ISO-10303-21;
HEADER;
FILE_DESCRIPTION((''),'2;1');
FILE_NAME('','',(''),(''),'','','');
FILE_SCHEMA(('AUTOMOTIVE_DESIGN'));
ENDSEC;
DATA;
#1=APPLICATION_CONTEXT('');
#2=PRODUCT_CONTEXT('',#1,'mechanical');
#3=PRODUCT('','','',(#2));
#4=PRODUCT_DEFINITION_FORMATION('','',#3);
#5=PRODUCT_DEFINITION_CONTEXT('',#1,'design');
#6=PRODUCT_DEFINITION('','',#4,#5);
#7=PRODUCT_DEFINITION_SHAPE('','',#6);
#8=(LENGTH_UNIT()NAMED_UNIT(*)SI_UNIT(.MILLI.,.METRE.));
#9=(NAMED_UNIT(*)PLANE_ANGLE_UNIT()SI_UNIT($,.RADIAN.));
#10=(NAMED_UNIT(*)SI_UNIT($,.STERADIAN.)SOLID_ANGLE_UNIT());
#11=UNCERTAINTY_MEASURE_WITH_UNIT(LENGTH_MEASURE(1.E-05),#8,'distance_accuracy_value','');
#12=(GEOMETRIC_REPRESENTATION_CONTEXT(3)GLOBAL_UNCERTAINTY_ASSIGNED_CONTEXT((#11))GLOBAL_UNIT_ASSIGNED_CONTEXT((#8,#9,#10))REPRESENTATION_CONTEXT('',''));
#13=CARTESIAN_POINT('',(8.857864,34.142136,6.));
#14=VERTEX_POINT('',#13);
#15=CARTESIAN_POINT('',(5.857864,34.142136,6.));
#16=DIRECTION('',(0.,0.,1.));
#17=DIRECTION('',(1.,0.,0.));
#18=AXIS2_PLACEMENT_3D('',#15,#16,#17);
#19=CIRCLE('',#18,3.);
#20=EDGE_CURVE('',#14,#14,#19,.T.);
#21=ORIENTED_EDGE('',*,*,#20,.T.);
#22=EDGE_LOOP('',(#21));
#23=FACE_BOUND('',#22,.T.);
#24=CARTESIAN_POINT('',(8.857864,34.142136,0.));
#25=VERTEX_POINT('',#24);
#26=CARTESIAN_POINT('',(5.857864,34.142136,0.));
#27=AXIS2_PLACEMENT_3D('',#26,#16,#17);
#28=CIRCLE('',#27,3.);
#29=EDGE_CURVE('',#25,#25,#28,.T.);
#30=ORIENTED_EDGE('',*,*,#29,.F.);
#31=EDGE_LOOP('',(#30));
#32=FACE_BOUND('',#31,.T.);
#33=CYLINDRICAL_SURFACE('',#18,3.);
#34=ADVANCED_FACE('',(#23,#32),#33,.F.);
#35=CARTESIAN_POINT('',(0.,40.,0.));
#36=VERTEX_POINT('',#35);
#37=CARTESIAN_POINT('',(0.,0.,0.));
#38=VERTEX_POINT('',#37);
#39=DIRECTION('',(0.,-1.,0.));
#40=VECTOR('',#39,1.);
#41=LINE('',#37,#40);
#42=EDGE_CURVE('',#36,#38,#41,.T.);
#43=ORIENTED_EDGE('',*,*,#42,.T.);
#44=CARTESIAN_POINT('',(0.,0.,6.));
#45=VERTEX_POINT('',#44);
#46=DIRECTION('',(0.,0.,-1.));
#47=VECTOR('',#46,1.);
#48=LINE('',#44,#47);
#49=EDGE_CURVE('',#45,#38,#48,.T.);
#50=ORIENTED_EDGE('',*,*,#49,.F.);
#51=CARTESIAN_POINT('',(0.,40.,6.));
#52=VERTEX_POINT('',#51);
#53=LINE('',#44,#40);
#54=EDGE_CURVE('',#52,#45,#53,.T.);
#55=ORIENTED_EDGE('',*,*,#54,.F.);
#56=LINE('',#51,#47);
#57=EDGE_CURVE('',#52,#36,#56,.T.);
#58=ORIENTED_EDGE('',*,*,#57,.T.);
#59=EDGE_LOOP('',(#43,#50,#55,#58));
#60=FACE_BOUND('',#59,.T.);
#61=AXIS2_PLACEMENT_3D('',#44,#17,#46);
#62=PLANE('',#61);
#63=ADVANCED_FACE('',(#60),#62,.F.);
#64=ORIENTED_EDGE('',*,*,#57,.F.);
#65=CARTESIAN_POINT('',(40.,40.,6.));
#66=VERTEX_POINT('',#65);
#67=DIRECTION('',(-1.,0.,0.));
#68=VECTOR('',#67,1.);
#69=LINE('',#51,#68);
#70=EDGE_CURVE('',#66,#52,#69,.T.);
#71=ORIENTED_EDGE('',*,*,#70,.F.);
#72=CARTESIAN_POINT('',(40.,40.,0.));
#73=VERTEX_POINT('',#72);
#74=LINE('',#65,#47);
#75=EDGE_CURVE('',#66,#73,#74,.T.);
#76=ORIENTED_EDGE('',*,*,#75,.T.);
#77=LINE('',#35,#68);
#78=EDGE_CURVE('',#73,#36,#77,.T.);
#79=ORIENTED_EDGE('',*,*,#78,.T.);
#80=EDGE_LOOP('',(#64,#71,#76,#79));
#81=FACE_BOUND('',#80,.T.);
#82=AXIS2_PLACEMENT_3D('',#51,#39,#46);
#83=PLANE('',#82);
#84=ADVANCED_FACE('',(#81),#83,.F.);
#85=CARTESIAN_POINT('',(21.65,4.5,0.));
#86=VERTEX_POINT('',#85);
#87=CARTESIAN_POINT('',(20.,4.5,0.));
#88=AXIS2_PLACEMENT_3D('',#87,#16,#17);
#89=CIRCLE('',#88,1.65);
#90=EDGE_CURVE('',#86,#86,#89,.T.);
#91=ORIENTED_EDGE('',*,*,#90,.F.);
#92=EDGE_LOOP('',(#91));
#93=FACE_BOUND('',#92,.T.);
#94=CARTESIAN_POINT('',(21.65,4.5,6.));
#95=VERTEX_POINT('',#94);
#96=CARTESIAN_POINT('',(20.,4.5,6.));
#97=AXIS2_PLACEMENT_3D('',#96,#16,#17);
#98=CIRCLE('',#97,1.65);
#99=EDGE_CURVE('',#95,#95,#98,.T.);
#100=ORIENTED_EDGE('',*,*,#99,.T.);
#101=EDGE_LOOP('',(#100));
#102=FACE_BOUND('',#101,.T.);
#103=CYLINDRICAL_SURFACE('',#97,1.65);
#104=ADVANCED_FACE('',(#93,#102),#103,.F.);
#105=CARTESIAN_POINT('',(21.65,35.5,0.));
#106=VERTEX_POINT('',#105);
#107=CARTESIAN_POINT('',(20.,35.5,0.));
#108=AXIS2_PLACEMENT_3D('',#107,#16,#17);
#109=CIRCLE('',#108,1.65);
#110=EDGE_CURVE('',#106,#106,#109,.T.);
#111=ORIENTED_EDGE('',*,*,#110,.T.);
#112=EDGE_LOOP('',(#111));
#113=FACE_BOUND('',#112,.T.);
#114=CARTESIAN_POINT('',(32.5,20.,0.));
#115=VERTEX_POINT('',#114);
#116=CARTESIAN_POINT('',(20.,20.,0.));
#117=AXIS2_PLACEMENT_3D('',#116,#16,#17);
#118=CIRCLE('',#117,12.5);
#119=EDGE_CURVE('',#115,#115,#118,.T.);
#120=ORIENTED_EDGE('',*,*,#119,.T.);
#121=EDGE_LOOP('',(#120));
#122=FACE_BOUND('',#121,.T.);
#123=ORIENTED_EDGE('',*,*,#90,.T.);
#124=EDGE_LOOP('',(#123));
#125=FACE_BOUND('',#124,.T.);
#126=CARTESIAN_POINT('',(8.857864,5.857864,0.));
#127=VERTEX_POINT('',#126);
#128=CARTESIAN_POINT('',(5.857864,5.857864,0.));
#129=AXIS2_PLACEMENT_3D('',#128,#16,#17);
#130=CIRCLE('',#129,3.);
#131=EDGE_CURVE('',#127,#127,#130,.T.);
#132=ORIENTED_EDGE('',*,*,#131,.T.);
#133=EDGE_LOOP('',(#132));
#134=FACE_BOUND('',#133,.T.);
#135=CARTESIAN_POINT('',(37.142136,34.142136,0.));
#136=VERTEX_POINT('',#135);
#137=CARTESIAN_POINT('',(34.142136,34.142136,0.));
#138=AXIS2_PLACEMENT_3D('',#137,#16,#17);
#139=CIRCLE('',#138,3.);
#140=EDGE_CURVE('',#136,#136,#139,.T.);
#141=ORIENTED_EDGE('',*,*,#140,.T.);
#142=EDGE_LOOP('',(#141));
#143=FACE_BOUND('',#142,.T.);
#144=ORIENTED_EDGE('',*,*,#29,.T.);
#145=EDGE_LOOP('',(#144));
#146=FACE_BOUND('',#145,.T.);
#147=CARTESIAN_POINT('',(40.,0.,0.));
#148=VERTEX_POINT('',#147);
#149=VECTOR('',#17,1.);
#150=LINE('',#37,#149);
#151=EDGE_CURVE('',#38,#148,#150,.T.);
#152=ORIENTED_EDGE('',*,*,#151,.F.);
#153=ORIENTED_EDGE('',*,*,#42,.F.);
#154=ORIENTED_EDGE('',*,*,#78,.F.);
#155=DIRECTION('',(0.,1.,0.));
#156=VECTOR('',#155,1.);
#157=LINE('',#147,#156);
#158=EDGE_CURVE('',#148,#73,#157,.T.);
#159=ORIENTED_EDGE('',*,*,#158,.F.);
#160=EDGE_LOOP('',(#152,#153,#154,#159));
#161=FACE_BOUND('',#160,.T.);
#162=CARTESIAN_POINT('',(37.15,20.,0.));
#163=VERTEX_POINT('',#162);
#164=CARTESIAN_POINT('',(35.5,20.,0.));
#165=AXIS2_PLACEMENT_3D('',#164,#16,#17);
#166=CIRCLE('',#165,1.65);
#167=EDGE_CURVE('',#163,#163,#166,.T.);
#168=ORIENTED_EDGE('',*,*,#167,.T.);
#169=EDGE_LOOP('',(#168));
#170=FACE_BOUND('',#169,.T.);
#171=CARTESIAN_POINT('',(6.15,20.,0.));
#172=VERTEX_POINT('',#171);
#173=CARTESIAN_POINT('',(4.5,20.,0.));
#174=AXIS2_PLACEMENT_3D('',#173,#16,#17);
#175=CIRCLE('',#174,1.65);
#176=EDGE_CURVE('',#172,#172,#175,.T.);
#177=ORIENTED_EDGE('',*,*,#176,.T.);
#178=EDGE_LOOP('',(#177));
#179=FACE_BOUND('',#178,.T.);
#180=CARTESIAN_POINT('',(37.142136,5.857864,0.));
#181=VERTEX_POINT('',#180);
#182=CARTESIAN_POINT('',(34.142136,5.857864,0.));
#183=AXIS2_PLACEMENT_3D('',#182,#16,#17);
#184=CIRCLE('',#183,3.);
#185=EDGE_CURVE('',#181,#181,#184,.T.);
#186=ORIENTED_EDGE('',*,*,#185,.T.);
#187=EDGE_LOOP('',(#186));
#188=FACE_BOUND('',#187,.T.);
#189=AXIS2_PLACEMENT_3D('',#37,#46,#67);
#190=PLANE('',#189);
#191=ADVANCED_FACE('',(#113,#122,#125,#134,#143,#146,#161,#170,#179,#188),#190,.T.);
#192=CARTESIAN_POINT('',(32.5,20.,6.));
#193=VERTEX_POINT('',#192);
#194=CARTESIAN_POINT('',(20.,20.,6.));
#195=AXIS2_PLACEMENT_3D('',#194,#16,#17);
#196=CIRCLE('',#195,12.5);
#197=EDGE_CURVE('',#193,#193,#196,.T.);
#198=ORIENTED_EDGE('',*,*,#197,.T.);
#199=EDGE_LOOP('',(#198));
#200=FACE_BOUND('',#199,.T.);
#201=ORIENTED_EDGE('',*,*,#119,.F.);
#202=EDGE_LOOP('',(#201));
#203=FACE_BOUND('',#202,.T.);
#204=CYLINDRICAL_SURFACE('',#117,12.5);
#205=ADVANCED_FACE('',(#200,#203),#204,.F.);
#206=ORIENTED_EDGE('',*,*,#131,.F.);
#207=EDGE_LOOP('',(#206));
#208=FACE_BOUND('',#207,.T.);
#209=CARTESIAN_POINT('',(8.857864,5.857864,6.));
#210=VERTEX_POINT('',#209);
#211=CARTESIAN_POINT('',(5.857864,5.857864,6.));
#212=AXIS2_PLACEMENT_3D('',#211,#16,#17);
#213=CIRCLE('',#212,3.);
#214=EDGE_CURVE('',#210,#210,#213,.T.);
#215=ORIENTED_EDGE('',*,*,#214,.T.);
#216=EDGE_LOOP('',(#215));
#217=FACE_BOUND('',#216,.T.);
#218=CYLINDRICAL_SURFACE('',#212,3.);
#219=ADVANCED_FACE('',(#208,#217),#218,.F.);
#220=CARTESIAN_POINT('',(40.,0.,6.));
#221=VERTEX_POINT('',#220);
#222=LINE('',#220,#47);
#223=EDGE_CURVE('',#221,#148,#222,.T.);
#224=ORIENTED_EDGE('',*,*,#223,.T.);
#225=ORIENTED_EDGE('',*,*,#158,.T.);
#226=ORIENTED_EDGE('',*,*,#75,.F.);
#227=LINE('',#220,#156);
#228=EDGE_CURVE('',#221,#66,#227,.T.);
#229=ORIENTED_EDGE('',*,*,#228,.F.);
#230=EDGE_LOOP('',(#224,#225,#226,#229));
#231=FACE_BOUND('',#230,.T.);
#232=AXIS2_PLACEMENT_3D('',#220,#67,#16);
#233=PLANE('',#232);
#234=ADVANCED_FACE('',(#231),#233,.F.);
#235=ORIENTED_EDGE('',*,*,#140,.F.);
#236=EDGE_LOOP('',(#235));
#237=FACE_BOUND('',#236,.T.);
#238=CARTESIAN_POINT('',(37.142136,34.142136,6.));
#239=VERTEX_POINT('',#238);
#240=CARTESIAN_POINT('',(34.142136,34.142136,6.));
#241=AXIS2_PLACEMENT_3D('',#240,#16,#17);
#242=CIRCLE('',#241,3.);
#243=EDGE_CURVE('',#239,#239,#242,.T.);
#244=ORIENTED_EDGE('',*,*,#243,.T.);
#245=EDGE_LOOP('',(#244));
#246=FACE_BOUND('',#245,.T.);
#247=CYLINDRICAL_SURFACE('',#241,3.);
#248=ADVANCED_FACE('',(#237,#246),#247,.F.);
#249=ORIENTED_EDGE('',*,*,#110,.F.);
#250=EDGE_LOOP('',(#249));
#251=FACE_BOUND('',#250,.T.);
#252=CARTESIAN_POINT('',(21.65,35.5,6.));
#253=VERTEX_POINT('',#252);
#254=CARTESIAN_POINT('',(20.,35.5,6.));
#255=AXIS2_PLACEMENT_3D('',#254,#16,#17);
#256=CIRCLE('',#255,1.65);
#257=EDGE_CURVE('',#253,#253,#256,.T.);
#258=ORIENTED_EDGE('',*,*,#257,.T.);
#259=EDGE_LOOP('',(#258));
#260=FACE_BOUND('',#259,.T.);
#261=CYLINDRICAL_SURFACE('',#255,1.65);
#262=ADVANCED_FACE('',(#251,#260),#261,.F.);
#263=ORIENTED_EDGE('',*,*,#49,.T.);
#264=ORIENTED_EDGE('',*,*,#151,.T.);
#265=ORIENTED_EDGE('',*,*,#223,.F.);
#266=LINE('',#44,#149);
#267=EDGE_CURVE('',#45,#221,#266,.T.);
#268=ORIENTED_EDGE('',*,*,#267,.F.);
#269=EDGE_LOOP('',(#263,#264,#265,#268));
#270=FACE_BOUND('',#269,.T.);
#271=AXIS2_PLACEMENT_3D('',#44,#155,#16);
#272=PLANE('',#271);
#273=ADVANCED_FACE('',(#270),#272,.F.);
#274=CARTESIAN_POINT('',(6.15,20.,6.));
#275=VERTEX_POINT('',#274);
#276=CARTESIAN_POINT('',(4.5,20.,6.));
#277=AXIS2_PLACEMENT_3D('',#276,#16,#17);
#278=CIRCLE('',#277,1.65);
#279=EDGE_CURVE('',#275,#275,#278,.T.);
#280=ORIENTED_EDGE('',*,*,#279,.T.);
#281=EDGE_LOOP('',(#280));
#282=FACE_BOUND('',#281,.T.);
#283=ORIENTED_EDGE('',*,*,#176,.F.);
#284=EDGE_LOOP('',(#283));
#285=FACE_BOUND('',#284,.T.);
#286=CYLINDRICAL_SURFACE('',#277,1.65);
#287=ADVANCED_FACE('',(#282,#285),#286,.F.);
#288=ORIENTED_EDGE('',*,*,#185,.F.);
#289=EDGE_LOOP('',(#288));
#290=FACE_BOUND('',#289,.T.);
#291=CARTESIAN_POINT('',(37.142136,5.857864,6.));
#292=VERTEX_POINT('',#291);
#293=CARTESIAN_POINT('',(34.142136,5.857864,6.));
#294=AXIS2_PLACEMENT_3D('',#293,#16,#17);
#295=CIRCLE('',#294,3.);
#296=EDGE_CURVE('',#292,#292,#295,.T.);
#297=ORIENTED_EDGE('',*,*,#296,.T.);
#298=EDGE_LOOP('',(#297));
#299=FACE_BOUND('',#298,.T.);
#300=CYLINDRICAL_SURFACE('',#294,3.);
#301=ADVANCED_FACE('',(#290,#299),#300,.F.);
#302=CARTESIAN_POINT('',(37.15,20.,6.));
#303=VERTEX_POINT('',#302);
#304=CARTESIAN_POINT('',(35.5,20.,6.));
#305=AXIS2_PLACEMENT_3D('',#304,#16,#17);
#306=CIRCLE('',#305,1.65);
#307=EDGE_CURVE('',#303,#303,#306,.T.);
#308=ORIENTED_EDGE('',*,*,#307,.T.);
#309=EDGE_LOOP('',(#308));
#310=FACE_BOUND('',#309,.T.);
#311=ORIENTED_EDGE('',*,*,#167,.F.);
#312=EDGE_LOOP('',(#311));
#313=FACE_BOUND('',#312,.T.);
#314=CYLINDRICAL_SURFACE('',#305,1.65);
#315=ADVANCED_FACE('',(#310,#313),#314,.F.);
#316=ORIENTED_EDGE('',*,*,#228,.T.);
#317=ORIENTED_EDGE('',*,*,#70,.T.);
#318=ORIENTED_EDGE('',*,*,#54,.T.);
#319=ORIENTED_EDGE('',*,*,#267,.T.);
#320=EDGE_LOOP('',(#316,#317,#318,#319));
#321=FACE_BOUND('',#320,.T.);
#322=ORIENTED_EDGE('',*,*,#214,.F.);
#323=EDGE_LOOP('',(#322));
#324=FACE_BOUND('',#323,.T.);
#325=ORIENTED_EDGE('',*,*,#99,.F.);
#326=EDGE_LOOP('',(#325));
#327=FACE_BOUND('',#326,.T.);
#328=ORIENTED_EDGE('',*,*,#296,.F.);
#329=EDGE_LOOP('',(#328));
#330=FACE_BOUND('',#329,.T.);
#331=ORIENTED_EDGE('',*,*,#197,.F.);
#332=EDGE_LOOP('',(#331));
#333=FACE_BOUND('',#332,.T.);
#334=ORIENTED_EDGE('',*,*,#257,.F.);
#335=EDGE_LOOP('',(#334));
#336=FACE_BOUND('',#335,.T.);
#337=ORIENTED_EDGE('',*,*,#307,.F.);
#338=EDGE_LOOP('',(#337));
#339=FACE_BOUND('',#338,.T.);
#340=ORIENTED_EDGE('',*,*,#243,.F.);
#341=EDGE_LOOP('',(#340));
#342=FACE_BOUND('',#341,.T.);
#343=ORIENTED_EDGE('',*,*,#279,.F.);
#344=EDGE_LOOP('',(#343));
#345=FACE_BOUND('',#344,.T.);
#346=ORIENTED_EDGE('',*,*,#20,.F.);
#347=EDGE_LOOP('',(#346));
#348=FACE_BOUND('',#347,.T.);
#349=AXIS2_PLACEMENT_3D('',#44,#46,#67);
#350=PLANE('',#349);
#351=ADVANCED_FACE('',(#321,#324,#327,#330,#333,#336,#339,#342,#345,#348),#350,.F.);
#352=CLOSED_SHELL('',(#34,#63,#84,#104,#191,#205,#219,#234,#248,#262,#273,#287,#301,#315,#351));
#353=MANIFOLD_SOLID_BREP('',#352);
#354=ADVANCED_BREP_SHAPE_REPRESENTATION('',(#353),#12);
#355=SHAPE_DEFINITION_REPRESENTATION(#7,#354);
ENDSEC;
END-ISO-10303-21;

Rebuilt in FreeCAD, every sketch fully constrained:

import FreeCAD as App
import Part
import Sketcher
Q = App.Units.Quantity


def add_polygon(sketch, points):
    """Adds a closed chain of lines whose ends are joined by coincident constraints."""
    first, n = sketch.GeometryCount, len(points)
    for a, b in zip(points, points[1:] + points[:1]):
        sketch.addGeometry(Part.LineSegment(App.Vector(*a, 0), App.Vector(*b, 0)), False)
    for i in range(n):
        sketch.addConstraint(Sketcher.Constraint("Coincident", first + i, 2, first + (i + 1) % n, 1))

doc = App.newDocument("Part")
params = doc.addObject("Spreadsheet::Sheet", "Params")
for row, (alias, value) in enumerate([
    ("sketch1_width", "40 mm"),
    ("pad1_length", "6 mm"),
    ("sketch2_diameter", "6 mm"),
    ("hole_diameter", "6 mm"),
    ("sketch3_diameter", "25 mm"),
    ("sketch4_diameter", "3.3 mm"),
    ("hole2_diameter", "3.3 mm"),
], start=1):
    params.set(f"A{row}", alias)
    params.set(f"B{row}", "=" + value)
    params.setAlias(f"B{row}", alias)

body = doc.addObject("PartDesign::Body", "Body")

# Sketch on XY plane
sketch1 = doc.addObject("Sketcher::SketchObject", "Sketch")
body.addObject(sketch1)
sketch1.AttachmentSupport = (doc.XY_Plane, [""])
sketch1.MapMode = "FlatFace"
add_polygon(sketch1, [(0, 40), (0, 0), (40, 0), (40, 40)])  # lines 0-3
sketch1.addConstraint([
    Sketcher.Constraint("Vertical", 0),
    Sketcher.Constraint("Horizontal", 1),
    Sketcher.Constraint("Vertical", 2),
    Sketcher.Constraint("Horizontal", 3),
    Sketcher.Constraint("Coincident", 0, 2, -1, 1),
    Sketcher.Constraint("Equal", 3, 0),
    Sketcher.Constraint("DistanceX", 1, 1, 1, 2, Q("40 mm")),
])
sketch1.setExpression("Constraints[10]", "Params.sketch1_width")
pad1 = doc.addObject("PartDesign::Pad", "Pad")
body.addObject(pad1)
pad1.Profile = sketch1
pad1.setExpression("Length", "Params.pad1_length")

# Sketch on XY plane
sketch2 = doc.addObject("Sketcher::SketchObject", "Sketch001")
body.addObject(sketch2)
sketch2.AttachmentSupport = (doc.XY_Plane, [""])
sketch2.MapMode = "FlatFace"
sketch2.AttachmentOffset = App.Placement(App.Vector(0, 0, 6), App.Rotation())
sketch2.addGeometry([
    Part.Circle(App.Vector(5.9, 5.9, 0), App.Vector(0, 0, 1), 3),
    Part.Circle(App.Vector(5.9, 34.1, 0), App.Vector(0, 0, 1), 3),
    Part.Circle(App.Vector(34.1, 34.1, 0), App.Vector(0, 0, 1), 3),
    Part.Circle(App.Vector(34.1, 5.9, 0), App.Vector(0, 0, 1), 3),
], False)
sketch2.addConstraint([
    Sketcher.Constraint("Equal", 0, 1),
    Sketcher.Constraint("Equal", 1, 2),
    Sketcher.Constraint("Equal", 2, 3),
    Sketcher.Constraint("Horizontal", 1, 3, 2, 3),
    Sketcher.Constraint("Horizontal", 0, 3, 3, 3),
    Sketcher.Constraint("Vertical", 0, 3, 1, 3),
    Sketcher.Constraint("Vertical", 2, 3, 3, 3),
    Sketcher.Constraint("Diameter", 0, Q("6 mm")),
    Sketcher.Constraint("DistanceY", 0, 3, 1, 3, Q("28.284271 mm")),
    Sketcher.Constraint("DistanceX", 1, 3, 2, 3, Q("28.284271 mm")),
    Sketcher.Constraint("DistanceX", -1, 1, 0, 3, Q("5.857864 mm")),
    Sketcher.Constraint("DistanceY", -1, 1, 0, 3, Q("5.857864 mm")),
])
sketch2.setExpression("Constraints[7]", "Params.sketch2_diameter")
doc.recompute()
hole = doc.addObject("PartDesign::Hole", "Hole")
body.addObject(hole)
hole.Profile = sketch2
hole.ThreadType = "None"
hole.setExpression("Diameter", "Params.hole_diameter")
hole.DepthType = "ThroughAll"

# Sketch on XY plane
sketch3 = doc.addObject("Sketcher::SketchObject", "Sketch002")
body.addObject(sketch3)
sketch3.AttachmentSupport = (doc.XY_Plane, [""])
sketch3.MapMode = "FlatFace"
sketch3.AttachmentOffset = App.Placement(App.Vector(0, 0, 6), App.Rotation())
sketch3.addGeometry(Part.Circle(App.Vector(20, 20, 0), App.Vector(0, 0, 1), 12), False)
sketch3.addConstraint([
    Sketcher.Constraint("Diameter", 0, Q("25 mm")),
    Sketcher.Constraint("DistanceX", -1, 1, 0, 3, Q("20 mm")),
    Sketcher.Constraint("DistanceY", -1, 1, 0, 3, Q("20 mm")),
])
sketch3.setExpression("Constraints[0]", "Params.sketch3_diameter")
pocket1 = doc.addObject("PartDesign::Pocket", "Pocket")
body.addObject(pocket1)
pocket1.Profile = sketch3
pocket1.Type = "ThroughAll"

# Sketch on XY plane
sketch4 = doc.addObject("Sketcher::SketchObject", "Sketch003")
body.addObject(sketch4)
sketch4.AttachmentSupport = (doc.XY_Plane, [""])
sketch4.MapMode = "FlatFace"
sketch4.AttachmentOffset = App.Placement(App.Vector(0, 0, 6), App.Rotation())
sketch4.addGeometry([
    Part.Circle(App.Vector(4.5, 20, 0), App.Vector(0, 0, 1), 1.6),
    Part.Circle(App.Vector(20, 35.5, 0), App.Vector(0, 0, 1), 1.6),
    Part.Circle(App.Vector(35.5, 20, 0), App.Vector(0, 0, 1), 1.6),
    Part.Circle(App.Vector(20, 4.5, 0), App.Vector(0, 0, 1), 1.6),
], False)
sketch4.addConstraint([
    Sketcher.Constraint("Equal", 0, 1),
    Sketcher.Constraint("Equal", 1, 2),
    Sketcher.Constraint("Equal", 2, 3),
    Sketcher.Constraint("Horizontal", 0, 3, 2, 3),
    Sketcher.Constraint("Vertical", 1, 3, 3, 3),
    Sketcher.Constraint("Diameter", 0, Q("3.3 mm")),
    Sketcher.Constraint("DistanceY", -1, 1, 0, 3, Q("20 mm")),
    Sketcher.Constraint("DistanceX", -1, 1, 1, 3, Q("20 mm")),
    Sketcher.Constraint("DistanceX", 0, 3, 2, 3, Q("31 mm")),
    Sketcher.Constraint("DistanceY", 3, 3, 1, 3, Q("31 mm")),
    Sketcher.Constraint("DistanceX", -1, 1, 0, 3, Q("4.5 mm")),
    Sketcher.Constraint("DistanceY", -1, 1, 1, 3, Q("35.5 mm")),
])
sketch4.setExpression("Constraints[5]", "Params.sketch4_diameter")
doc.recompute()
hole2 = doc.addObject("PartDesign::Hole", "Hole001")
body.addObject(hole2)
hole2.Profile = sketch4
hole2.ThreadType = "None"
hole2.setExpression("Diameter", "Params.hole2_diameter")
hole2.DepthType = "ThroughAll"

doc.recompute()
